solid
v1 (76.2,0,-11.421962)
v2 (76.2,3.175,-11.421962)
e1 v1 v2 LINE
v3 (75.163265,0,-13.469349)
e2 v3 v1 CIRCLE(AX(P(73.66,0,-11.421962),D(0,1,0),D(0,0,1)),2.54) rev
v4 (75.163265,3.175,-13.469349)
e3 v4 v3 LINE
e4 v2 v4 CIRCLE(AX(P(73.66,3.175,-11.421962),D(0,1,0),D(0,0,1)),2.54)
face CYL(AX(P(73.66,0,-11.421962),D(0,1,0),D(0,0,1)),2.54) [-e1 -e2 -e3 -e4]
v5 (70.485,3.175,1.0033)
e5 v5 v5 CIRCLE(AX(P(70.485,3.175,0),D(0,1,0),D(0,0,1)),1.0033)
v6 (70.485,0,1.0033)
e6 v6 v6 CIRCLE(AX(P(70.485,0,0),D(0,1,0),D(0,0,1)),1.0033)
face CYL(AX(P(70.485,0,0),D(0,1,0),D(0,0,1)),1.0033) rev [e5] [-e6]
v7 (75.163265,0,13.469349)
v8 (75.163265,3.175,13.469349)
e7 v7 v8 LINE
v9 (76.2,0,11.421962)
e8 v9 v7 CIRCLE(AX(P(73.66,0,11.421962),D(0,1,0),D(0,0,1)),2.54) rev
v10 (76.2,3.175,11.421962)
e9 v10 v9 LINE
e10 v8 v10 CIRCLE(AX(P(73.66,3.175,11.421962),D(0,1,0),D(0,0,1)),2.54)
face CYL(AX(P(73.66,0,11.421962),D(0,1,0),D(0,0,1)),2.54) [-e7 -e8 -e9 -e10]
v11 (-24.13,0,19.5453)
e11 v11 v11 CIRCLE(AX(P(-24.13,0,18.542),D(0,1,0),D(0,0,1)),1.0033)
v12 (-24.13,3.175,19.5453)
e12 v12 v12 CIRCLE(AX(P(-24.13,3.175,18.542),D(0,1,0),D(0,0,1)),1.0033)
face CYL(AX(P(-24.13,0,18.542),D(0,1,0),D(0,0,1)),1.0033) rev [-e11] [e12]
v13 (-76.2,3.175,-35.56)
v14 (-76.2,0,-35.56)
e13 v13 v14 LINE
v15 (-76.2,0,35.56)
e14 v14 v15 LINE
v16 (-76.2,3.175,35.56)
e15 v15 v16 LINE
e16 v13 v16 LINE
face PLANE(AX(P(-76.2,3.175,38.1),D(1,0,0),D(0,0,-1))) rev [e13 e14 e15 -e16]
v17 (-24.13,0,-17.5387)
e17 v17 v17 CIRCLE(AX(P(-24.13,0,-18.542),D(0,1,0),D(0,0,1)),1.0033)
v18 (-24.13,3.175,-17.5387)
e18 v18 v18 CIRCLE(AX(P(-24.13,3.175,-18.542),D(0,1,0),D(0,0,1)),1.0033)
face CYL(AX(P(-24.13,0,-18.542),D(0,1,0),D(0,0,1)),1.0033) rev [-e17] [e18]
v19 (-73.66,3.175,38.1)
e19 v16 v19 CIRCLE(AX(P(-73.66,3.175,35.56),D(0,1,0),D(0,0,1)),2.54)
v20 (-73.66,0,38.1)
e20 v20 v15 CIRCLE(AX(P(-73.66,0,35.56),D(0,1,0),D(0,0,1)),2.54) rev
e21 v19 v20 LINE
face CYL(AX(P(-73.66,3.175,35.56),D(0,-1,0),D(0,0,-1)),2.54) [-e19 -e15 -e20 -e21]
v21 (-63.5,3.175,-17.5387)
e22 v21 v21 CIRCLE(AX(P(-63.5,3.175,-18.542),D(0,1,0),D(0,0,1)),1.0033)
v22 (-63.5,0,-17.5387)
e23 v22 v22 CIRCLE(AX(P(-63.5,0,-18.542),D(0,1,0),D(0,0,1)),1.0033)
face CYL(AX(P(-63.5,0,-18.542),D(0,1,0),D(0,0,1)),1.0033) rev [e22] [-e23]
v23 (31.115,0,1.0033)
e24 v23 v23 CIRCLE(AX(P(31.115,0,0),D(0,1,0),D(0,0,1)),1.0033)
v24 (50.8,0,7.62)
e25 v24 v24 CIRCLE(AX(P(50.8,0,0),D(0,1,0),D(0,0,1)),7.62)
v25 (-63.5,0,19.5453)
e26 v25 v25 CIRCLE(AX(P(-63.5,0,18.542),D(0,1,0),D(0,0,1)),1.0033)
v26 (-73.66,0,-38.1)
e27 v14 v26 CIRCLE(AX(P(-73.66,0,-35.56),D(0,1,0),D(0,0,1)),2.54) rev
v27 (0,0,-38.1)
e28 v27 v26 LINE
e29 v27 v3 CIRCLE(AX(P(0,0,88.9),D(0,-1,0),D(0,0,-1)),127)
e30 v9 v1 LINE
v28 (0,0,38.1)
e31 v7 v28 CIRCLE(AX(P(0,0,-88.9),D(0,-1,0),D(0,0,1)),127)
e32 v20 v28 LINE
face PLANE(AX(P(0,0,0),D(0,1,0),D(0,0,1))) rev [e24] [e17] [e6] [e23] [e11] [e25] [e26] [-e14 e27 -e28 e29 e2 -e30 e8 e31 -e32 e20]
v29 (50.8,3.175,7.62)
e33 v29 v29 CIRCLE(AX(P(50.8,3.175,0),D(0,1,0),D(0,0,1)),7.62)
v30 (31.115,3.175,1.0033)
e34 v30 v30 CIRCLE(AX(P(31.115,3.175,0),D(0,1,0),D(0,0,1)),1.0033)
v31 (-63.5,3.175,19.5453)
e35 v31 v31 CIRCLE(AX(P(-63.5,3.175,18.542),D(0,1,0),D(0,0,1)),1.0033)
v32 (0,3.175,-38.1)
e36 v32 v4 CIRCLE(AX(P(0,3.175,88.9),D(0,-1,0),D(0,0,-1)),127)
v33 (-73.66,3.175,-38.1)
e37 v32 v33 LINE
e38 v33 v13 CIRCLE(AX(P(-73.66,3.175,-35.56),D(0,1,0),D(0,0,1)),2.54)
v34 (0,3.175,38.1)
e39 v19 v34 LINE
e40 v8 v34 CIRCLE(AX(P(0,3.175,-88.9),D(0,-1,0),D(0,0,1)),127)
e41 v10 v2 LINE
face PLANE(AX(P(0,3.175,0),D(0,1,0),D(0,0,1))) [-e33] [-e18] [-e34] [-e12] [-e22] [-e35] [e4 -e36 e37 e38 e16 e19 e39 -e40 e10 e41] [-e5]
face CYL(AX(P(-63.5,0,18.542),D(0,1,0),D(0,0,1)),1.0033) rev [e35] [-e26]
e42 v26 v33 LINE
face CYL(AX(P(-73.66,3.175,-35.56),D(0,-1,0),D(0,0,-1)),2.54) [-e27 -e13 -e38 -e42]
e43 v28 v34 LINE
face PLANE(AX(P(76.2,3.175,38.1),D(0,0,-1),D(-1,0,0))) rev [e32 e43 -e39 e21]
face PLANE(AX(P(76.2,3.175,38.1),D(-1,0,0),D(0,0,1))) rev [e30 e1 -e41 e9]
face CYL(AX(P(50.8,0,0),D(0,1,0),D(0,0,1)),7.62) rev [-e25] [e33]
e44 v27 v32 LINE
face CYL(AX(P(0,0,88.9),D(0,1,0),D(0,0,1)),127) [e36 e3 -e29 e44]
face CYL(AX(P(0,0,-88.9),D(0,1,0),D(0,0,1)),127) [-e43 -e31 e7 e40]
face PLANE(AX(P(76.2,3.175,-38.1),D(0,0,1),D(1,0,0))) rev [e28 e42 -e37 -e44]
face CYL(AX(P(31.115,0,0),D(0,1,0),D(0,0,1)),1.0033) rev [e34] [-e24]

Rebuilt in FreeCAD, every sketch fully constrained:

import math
import FreeCAD as App
import Part
import Sketcher
Q = App.Units.Quantity


def edges_at(feature, points):
    """Names of the edges that pass closest to the given points."""
    edges = feature.Shape.Edges
    near = lambda p: min(range(len(edges)), key=lambda i: edges[i].distToShape(Part.Vertex(*p))[0])
    return sorted({f"Edge{near(p) + 1}" for p in points})

doc = App.newDocument("Part")
body = doc.addObject("PartDesign::Body", "Body")

# Sketch on XZ plane
sketch1 = doc.addObject("Sketcher::SketchObject", "Sketch")
body.addObject(sketch1)
sketch1.AttachmentSupport = (doc.XZ_Plane, [""])
sketch1.MapMode = "FlatFace"
sketch1.addGeometry([
    Part.LineSegment(App.Vector(-76, -38, 0), App.Vector(-76, 38, 0)),
    Part.LineSegment(App.Vector(-76, 38, 0), App.Vector(76, 38, 0)),
    Part.LineSegment(App.Vector(76, 38, 0), App.Vector(76, -38, 0)),
    Part.LineSegment(App.Vector(76, -38, 0), App.Vector(-76, -38, 0)),
], False)
sketch1.addConstraint([
    Sketcher.Constraint("Coincident", 0, 2, 1, 1),
    Sketcher.Constraint("Coincident", 1, 2, 2, 1),
    Sketcher.Constraint("Coincident", 2, 2, 3, 1),
    Sketcher.Constraint("Coincident", 3, 2, 0, 1),
    Sketcher.Constraint("Vertical", 0),
    Sketcher.Constraint("Horizontal", 1),
    Sketcher.Constraint("Vertical", 2),
    Sketcher.Constraint("Horizontal", 3),
    Sketcher.Constraint("Symmetric", 0, 2, 2, 2, -1, 1),
    Sketcher.Constraint("DistanceX", 1, 1, 1, 2, Q("6 in")),
    Sketcher.Constraint("DistanceY", 0, 1, 0, 2, Q("3 in")),
])
pad1 = doc.addObject("PartDesign::Pad", "Pad")
body.addObject(pad1)
pad1.Profile = sketch1
pad1.Length = Q("0.125 in")
pad1.Reversed = True

# Sketch on XZ plane
sketch2 = doc.addObject("Sketcher::SketchObject", "Sketch001")
body.addObject(sketch2)
sketch2.AttachmentSupport = (doc.XZ_Plane, [""])
sketch2.MapMode = "FlatFace"
sketch2.AttachmentOffset = App.Placement(App.Vector(0, 0, -0.125 * 25.4), App.Rotation())
sketch2.addGeometry([
    Part.LineSegment(App.Vector(76, -38, 0), App.Vector(0, -38, 0)),  # 0
    Part.ArcOfCircle(Part.Circle(App.Vector(0, 89, 0), App.Vector(0, 0, 1), 127), math.radians(-90), math.radians(-53)),  # 1
    Part.LineSegment(App.Vector(76, -13, 0), App.Vector(76, -38, 0)),  # 2
    Part.LineSegment(App.Vector(76, 38, 0), App.Vector(76, 13, 0)),  # 3
    Part.ArcOfCircle(Part.Circle(App.Vector(0, -89, 0), App.Vector(0, 0, 1), 127), math.radians(53), math.radians(90)),  # 4
    Part.LineSegment(App.Vector(0, 38, 0), App.Vector(76, 38, 0)),  # 5
], False)
sketch2.addConstraint([
    Sketcher.Constraint("Tangent", 0, 2, 1, 1),
    Sketcher.Constraint("Coincident", 1, 2, 2, 1),
    Sketcher.Constraint("Coincident", 2, 2, 0, 1),
    Sketcher.Constraint("Coincident", 3, 2, 4, 1),
    Sketcher.Constraint("Tangent", 4, 2, 5, 1),
    Sketcher.Constraint("Coincident", 5, 2, 3, 1),
    Sketcher.Constraint("Horizontal", 0),
    Sketcher.Constraint("Vertical", 2),
    Sketcher.Constraint("Vertical", 3),
    Sketcher.Constraint("Horizontal", 5),
    Sketcher.Constraint("Equal", 1, 4),
    Sketcher.Constraint("Symmetric", 1, 3, 4, 3, -1, 1),
    Sketcher.Constraint("Symmetric", 1, 2, 3, 2, -1),
    Sketcher.Constraint("Radius", 1, Q("5 in")),
    Sketcher.Constraint("DistanceX", 0, 2, 0, 1, Q("3 in")),
    Sketcher.Constraint("DistanceY", 4, 3, 1, 3, Q("7 in")),
])
pocket1 = doc.addObject("PartDesign::Pocket", "Pocket")
body.addObject(pocket1)
pocket1.Profile = sketch2
pocket1.Length = Q("0.125 in")
pocket1.Reversed = True
doc.recompute()

fillet = doc.addObject("PartDesign::Fillet", "Fillet")
body.addObject(fillet)
fillet.Base = (pocket1, edges_at(pocket1, [(76.2, 1.587, -12.7), (76.2, 1.587, 12.7)]))
fillet.Radius = Q("0.1 in")
doc.recompute()

fillet2 = doc.addObject("PartDesign::Fillet", "Fillet001")
body.addObject(fillet2)
fillet2.Base = (fillet, edges_at(fillet, [(-76.2, 1.587, -38.1), (-76.2, 1.587, 38.1)]))
fillet2.Radius = Q("0.1 in")

# Sketch on XZ plane
sketch3 = doc.addObject("Sketcher::SketchObject", "Sketch002")
body.addObject(sketch3)
sketch3.AttachmentSupport = (doc.XZ_Plane, [""])
sketch3.MapMode = "FlatFace"
sketch3.AttachmentOffset = App.Placement(App.Vector(0, 0, -0.125 * 25.4), App.Rotation())
sketch3.addGeometry(Part.Circle(App.Vector(51, 0, 0), App.Vector(0, 0, 1), 8), False)
sketch3.addConstraint([
    Sketcher.Constraint("PointOnObject", 0, 3, -1),
    Sketcher.Constraint("Diameter", 0, Q("0.6 in")),
    Sketcher.Constraint("DistanceX", -1, 1, 0, 3, Q("2 in")),
])
pocket2 = doc.addObject("PartDesign::Pocket", "Pocket001")
body.addObject(pocket2)
pocket2.Profile = sketch3
pocket2.Length = Q("0.125 in")
pocket2.Reversed = True

# Sketch on XZ plane
sketch4 = doc.addObject("Sketcher::SketchObject", "Sketch003")
body.addObject(sketch4)
sketch4.AttachmentSupport = (doc.XZ_Plane, [""])
sketch4.MapMode = "FlatFace"
sketch4.AttachmentOffset = App.Placement(App.Vector(0, 0, -0.125 * 25.4), App.Rotation())
sketch4.addGeometry([
    Part.Circle(App.Vector(70.5, 0, 0), App.Vector(0, 0, 1), 1),
    Part.Circle(App.Vector(31.1, 0, 0), App.Vector(0, 0, 1), 1),
], False)
sketch4.addConstraint([
    Sketcher.Constraint("Equal", 0, 1),
    Sketcher.Constraint("PointOnObject", 0, 3, -1),
    Sketcher.Constraint("PointOnObject", 1, 3, -1),
    Sketcher.Constraint("Diameter", 0, Q("0.079 in")),
    Sketcher.Constraint("DistanceX", 1, 3, 0, 3, Q("1.55 in")),
    Sketcher.Constraint("DistanceX", -1, 1, 0, 3, Q("2.775 in")),
])
pocket3 = doc.addObject("PartDesign::Pocket", "Pocket002")
body.addObject(pocket3)
pocket3.Profile = sketch4
pocket3.Type = "ThroughAll"
pocket3.Reversed = True

# Sketch on XZ plane
sketch5 = doc.addObject("Sketcher::SketchObject", "Sketch004")
body.addObject(sketch5)
sketch5.AttachmentSupport = (doc.XZ_Plane, [""])
sketch5.MapMode = "FlatFace"
sketch5.AttachmentOffset = App.Placement(App.Vector(0, 0, -0.125 * 25.4), App.Rotation())
sketch5.addGeometry([
    Part.Circle(App.Vector(-63.5, -18.5, 0), App.Vector(0, 0, 1), 1),
    Part.Circle(App.Vector(-24.1, -18.5, 0), App.Vector(0, 0, 1), 1),
    Part.Circle(App.Vector(-24.1, 18.5, 0), App.Vector(0, 0, 1), 1),
    Part.Circle(App.Vector(-63.5, 18.5, 0), App.Vector(0, 0, 1), 1),
], False)
sketch5.addConstraint([
    Sketcher.Constraint("Equal", 0, 1),
    Sketcher.Constraint("Equal", 1, 2),
    Sketcher.Constraint("Equal", 2, 3),
    Sketcher.Constraint("Symmetric", 1, 3, 2, 3, -1),
    Sketcher.Constraint("Symmetric", 0, 3, 3, 3, -1),
    Sketcher.Constraint("Horizontal", 0, 3, 1, 3),
    Sketcher.Constraint("Diameter", 0, Q("0.079 in")),
    Sketcher.Constraint("DistanceX", 0, 3, -1, 1, Q("2.5 in")),
    Sketcher.Constraint("DistanceY", 0, 3, -1, 1, Q("0.73 in")),
    Sketcher.Constraint("DistanceX", 1, 3, -1, 1, Q("0.95 in")),
])
pocket4 = doc.addObject("PartDesign::Pocket", "Pocket003")
body.addObject(pocket4)
pocket4.Profile = sketch5
pocket4.Type = "ThroughAll"
pocket4.Reversed = True

doc.recompute()
